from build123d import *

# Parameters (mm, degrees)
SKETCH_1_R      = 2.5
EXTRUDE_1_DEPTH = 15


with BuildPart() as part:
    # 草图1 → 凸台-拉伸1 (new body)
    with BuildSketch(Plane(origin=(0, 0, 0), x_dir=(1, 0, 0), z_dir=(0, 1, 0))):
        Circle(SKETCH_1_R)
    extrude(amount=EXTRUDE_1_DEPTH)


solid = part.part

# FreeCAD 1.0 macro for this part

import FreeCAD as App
import Part
import Sketcher
Q = App.Units.Quantity

doc = App.newDocument("Part")
body = doc.addObject("PartDesign::Body", "Body")

# Sketch on XZ plane
sketch1 = body.newObject("Sketcher::SketchObject", "Sketch")
sketch1.AttachmentSupport = (doc.getObject("XZ_Plane"), [""])
sketch1.MapMode = "FlatFace"
sketch1.addGeometry(Part.Circle(App.Vector(0, 0, 0), App.Vector(0, 0, 1), 2.5), False)
sketch1.addConstraint(Sketcher.Constraint("Coincident", 0, 3, -1, 1))
sketch1.addConstraint(Sketcher.Constraint("Diameter", 0, Q("5 mm")))
pad1 = body.newObject("PartDesign::Pad", "Pad")
pad1.Profile = sketch1
pad1.Length = 15
pad1.Reversed = True

doc.recompute()
